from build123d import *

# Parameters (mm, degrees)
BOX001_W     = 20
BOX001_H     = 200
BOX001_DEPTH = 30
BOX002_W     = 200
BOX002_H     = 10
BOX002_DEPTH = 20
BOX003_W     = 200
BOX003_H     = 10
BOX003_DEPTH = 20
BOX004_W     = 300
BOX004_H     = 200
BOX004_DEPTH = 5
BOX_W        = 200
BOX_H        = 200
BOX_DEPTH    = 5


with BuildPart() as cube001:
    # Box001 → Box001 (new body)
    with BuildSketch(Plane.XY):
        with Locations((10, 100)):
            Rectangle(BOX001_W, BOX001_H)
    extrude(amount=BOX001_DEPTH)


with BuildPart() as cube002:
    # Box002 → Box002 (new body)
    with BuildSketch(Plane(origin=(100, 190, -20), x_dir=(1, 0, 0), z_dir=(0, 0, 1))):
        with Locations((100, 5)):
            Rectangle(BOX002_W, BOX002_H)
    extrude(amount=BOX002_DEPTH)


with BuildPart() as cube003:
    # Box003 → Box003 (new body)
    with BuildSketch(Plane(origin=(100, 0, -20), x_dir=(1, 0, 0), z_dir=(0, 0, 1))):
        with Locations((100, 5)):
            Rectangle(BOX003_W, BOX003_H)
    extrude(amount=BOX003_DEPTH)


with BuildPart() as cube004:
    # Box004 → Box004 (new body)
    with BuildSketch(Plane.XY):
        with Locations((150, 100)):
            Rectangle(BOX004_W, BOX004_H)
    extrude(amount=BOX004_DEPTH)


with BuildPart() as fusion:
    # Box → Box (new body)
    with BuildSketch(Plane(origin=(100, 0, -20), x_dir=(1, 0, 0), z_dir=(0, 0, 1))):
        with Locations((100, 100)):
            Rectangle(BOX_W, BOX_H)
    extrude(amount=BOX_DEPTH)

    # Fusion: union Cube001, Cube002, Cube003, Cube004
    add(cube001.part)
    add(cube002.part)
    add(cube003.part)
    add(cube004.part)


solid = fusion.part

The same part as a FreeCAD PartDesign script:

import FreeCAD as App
import Part
import Sketcher


def add_polygon(sketch, points):
    """Adds a closed chain of lines whose ends are joined by coincident constraints."""
    first, n = sketch.GeometryCount, len(points)
    for a, b in zip(points, points[1:] + points[:1]):
        sketch.addGeometry(Part.LineSegment(App.Vector(*a, 0), App.Vector(*b, 0)), False)
    for i in range(n):
        sketch.addConstraint(Sketcher.Constraint("Coincident", first + i, 2, first + (i + 1) % n, 1))

doc = App.newDocument("Part")
body = doc.addObject("PartDesign::Body", "Body")

# Sketch on XY plane
sketch1 = body.newObject("Sketcher::SketchObject", "Sketch")
sketch1.AttachmentSupport = (doc.getObject("XY_Plane"), [""])
sketch1.MapMode = "FlatFace"
add_polygon(sketch1, [(0, 200), (0, 0), (20, 0), (20, 200)])  # lines 0-3
sketch1.addConstraint([
    Sketcher.Constraint("Vertical", 0),
    Sketcher.Constraint("Horizontal", 1),
    Sketcher.Constraint("Vertical", 2),
    Sketcher.Constraint("Horizontal", 3),
    Sketcher.Constraint("Coincident", 0, 2, -1, 1),
    Sketcher.Constraint("DistanceX", 1, 1, 1, 2, 20.0),
    Sketcher.Constraint("DistanceY", 0, 2, 0, 1, 200.0),
])
pad1 = body.newObject("PartDesign::Pad", "Pad")
pad1.Profile = sketch1
pad1.Length = 30
body2 = doc.addObject("PartDesign::Body", "Body001")

# Sketch on XY plane
sketch2 = body2.newObject("Sketcher::SketchObject", "Sketch001")
sketch2.AttachmentSupport = (doc.getObject("XY_Plane001"), [""])
sketch2.MapMode = "FlatFace"
sketch2.AttachmentOffset = App.Placement(App.Vector(0, 0, -20), App.Rotation())
add_polygon(sketch2, [(100, 200), (100, 190), (300, 190), (300, 200)])  # lines 0-3
sketch2.addConstraint([
    Sketcher.Constraint("Vertical", 0),
    Sketcher.Constraint("Horizontal", 1),
    Sketcher.Constraint("Vertical", 2),
    Sketcher.Constraint("Horizontal", 3),
    Sketcher.Constraint("DistanceX", 1, 1, 1, 2, 200.0),
    Sketcher.Constraint("DistanceY", 0, 2, 0, 1, 10.0),
    Sketcher.Constraint("DistanceX", -1, 1, 0, 2, 100.0),
    Sketcher.Constraint("DistanceY", -1, 1, 0, 2, 190.0),
])
pad2 = body2.newObject("PartDesign::Pad", "Pad001")
pad2.Profile = sketch2
pad2.Length = 20
body3 = doc.addObject("PartDesign::Body", "Body002")

# Sketch on XY plane
sketch3 = body3.newObject("Sketcher::SketchObject", "Sketch002")
sketch3.AttachmentSupport = (doc.getObject("XY_Plane002"), [""])
sketch3.MapMode = "FlatFace"
sketch3.AttachmentOffset = App.Placement(App.Vector(0, 0, -20), App.Rotation())
add_polygon(sketch3, [(100, 10), (100, 0), (300, 0), (300, 10)])  # lines 0-3
sketch3.addConstraint([
    Sketcher.Constraint("Vertical", 0),
    Sketcher.Constraint("Horizontal", 1),
    Sketcher.Constraint("Vertical", 2),
    Sketcher.Constraint("Horizontal", 3),
    Sketcher.Constraint("PointOnObject", 0, 2, -1),
    Sketcher.Constraint("DistanceX", 1, 1, 1, 2, 200.0),
    Sketcher.Constraint("DistanceY", 0, 2, 0, 1, 10.0),
    Sketcher.Constraint("DistanceX", -1, 1, 0, 2, 100.0),
])
pad3 = body3.newObject("PartDesign::Pad", "Pad002")
pad3.Profile = sketch3
pad3.Length = 20
body4 = doc.addObject("PartDesign::Body", "Body003")

# Sketch on XY plane
sketch4 = body4.newObject("Sketcher::SketchObject", "Sketch003")
sketch4.AttachmentSupport = (doc.getObject("XY_Plane003"), [""])
sketch4.MapMode = "FlatFace"
add_polygon(sketch4, [(0, 200), (0, 0), (300, 0), (300, 200)])  # lines 0-3
sketch4.addConstraint([
    Sketcher.Constraint("Vertical", 0),
    Sketcher.Constraint("Horizontal", 1),
    Sketcher.Constraint("Vertical", 2),
    Sketcher.Constraint("Horizontal", 3),
    Sketcher.Constraint("Coincident", 0, 2, -1, 1),
    Sketcher.Constraint("DistanceX", 1, 1, 1, 2, 300.0),
    Sketcher.Constraint("DistanceY", 0, 2, 0, 1, 200.0),
])
pad4 = body4.newObject("PartDesign::Pad", "Pad003")
pad4.Profile = sketch4
pad4.Length = 5
body5 = doc.addObject("PartDesign::Body", "Body004")
body5.AllowCompound = True

# Sketch on XY plane
sketch5 = body5.newObject("Sketcher::SketchObject", "Sketch004")
sketch5.AttachmentSupport = (doc.getObject("XY_Plane004"), [""])
sketch5.MapMode = "FlatFace"
sketch5.AttachmentOffset = App.Placement(App.Vector(0, 0, -20), App.Rotation())
add_polygon(sketch5, [(100, 200), (100, 0), (300, 0), (300, 200)])  # lines 0-3
sketch5.addConstraint([
    Sketcher.Constraint("Vertical", 0),
    Sketcher.Constraint("Horizontal", 1),
    Sketcher.Constraint("Vertical", 2),
    Sketcher.Constraint("Horizontal", 3),
    Sketcher.Constraint("PointOnObject", 0, 2, -1),
    Sketcher.Constraint("Equal", 3, 0),
    Sketcher.Constraint("DistanceX", 1, 1, 1, 2, 200.0),
    Sketcher.Constraint("DistanceX", -1, 1, 0, 2, 100.0),
])
pad5 = body5.newObject("PartDesign::Pad", "Pad004")
pad5.Profile = sketch5
pad5.Length = 5
doc.recompute()

boolean = body5.newObject("PartDesign::Boolean", "Boolean")
boolean.Type = "Fuse"
boolean.addObjects([body])
doc.recompute()

boolean2 = body5.newObject("PartDesign::Boolean", "Boolean001")
boolean2.Type = "Fuse"
boolean2.addObjects([body2])
doc.recompute()

boolean3 = body5.newObject("PartDesign::Boolean", "Boolean002")
boolean3.Type = "Fuse"
boolean3.addObjects([body3])
doc.recompute()

boolean4 = body5.newObject("PartDesign::Boolean", "Boolean003")
boolean4.Type = "Fuse"
boolean4.addObjects([body4])

doc.recompute()
